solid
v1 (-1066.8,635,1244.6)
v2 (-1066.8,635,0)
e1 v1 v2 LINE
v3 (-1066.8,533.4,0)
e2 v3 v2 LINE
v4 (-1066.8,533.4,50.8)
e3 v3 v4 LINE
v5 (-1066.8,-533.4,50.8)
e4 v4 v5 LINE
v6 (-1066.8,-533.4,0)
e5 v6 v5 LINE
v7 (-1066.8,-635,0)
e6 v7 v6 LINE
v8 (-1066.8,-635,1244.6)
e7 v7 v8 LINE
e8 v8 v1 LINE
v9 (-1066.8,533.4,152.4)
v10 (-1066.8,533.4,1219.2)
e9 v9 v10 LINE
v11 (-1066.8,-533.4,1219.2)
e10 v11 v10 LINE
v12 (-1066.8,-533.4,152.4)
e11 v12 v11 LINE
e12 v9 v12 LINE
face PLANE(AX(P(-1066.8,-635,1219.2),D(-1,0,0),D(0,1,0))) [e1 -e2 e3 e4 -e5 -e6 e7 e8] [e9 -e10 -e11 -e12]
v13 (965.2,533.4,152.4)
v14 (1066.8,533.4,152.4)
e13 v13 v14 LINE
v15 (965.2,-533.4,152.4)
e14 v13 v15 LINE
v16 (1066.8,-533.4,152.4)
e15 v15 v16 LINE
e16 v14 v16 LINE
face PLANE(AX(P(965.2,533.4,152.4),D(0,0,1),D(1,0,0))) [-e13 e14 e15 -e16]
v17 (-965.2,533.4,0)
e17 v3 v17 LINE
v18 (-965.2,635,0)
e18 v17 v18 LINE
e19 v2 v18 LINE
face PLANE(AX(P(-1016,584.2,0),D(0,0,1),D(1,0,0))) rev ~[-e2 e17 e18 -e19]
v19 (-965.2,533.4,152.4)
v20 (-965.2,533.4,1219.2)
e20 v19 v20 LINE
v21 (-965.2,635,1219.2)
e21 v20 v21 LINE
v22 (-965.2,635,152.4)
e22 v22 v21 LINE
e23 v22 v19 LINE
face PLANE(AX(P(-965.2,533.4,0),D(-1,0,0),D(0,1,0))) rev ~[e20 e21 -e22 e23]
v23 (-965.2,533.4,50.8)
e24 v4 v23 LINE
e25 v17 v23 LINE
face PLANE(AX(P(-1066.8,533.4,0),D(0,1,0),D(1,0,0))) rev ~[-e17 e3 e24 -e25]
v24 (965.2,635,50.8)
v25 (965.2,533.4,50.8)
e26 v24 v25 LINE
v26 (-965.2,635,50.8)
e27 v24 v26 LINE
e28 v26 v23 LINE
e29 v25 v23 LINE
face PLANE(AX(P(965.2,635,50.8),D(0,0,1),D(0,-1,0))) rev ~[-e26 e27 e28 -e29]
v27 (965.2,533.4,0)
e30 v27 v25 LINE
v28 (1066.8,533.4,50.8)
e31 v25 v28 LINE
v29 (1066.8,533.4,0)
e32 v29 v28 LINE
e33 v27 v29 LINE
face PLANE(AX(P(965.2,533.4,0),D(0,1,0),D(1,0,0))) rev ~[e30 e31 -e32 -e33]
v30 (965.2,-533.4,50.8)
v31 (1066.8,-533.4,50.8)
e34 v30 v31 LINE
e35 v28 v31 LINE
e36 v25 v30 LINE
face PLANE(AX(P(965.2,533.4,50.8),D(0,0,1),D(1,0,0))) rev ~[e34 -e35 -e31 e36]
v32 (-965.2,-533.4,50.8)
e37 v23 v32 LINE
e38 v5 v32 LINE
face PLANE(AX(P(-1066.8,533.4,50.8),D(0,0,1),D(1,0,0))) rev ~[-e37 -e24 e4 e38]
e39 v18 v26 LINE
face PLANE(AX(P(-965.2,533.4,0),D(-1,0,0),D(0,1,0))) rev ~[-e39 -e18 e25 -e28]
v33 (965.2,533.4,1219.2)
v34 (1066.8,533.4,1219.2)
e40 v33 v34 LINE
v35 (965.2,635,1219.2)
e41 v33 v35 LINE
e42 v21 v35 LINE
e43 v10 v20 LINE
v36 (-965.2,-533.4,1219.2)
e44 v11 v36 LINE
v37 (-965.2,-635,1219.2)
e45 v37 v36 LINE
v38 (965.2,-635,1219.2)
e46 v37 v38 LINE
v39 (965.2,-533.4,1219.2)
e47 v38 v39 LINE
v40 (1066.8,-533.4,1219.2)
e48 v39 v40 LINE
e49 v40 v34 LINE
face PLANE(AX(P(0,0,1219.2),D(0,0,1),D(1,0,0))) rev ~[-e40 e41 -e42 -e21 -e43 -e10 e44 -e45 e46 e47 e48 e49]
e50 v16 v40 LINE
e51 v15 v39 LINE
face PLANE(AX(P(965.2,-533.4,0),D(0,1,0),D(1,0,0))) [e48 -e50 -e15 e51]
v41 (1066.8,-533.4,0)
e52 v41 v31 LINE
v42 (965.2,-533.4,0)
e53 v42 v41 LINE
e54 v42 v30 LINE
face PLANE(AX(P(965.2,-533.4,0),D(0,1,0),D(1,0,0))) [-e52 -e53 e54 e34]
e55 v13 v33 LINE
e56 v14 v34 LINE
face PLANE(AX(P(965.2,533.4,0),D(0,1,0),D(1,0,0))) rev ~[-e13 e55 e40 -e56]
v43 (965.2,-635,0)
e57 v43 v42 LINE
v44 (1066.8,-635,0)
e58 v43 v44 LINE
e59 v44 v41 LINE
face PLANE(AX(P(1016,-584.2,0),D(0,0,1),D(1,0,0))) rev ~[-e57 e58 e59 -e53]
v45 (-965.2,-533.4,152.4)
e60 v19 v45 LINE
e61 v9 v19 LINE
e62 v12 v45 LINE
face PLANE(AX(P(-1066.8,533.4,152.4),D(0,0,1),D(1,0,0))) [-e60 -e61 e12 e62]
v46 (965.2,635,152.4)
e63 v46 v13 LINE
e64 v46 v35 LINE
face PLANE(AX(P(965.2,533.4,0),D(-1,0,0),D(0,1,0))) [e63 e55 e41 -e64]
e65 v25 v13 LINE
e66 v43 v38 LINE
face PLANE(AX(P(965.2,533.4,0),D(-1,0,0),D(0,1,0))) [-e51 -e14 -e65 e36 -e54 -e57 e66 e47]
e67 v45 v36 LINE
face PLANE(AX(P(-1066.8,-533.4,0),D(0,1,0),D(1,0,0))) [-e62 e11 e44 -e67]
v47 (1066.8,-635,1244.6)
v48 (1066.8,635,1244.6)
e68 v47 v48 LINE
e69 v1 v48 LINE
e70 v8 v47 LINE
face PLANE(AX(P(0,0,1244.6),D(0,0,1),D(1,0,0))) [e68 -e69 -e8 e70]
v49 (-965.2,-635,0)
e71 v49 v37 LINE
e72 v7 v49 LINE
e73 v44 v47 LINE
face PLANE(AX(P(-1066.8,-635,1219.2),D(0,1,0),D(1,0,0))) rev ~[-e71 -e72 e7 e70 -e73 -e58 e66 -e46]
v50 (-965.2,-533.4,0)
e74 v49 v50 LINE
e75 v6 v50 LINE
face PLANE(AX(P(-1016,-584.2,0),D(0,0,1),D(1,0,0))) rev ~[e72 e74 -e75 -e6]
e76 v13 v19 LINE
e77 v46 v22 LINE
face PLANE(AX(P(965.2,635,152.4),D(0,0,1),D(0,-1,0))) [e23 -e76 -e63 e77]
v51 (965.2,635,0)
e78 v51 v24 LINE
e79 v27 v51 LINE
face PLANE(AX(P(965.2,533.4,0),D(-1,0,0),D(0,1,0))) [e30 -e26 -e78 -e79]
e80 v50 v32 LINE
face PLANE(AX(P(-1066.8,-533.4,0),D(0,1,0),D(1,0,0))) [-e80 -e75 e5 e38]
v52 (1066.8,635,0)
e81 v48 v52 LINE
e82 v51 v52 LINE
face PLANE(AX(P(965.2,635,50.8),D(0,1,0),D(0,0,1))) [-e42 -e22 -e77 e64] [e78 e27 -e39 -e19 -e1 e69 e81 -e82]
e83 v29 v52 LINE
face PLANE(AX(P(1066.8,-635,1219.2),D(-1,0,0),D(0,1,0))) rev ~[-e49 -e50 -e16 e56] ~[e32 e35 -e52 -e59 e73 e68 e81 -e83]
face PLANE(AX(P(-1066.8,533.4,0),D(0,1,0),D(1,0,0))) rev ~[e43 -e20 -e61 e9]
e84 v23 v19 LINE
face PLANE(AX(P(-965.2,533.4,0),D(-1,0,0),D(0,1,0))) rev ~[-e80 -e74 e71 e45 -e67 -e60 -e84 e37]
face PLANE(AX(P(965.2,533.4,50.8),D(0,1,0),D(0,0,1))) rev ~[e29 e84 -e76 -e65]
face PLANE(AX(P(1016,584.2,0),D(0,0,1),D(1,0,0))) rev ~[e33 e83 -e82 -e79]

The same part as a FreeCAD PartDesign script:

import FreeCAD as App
import Part
import Sketcher

V = App.Vector
Q = App.Units.Quantity

doc = App.newDocument("Part")
body = doc.addObject("PartDesign::Body", "Body")
body.AllowCompound = True

# Sketch on XY plane
sketch1 = body.newObject("Sketcher::SketchObject", "Sketch")
sketch1.AttachmentSupport = (doc.getObject("XY_Plane"), [""])
sketch1.MapMode = "FlatFace"
sketch1.addGeometry(Part.LineSegment(V(-1067, 635, 0), V(-1067, 533, 0)), False)
sketch1.addGeometry(Part.LineSegment(V(-1067, 533, 0), V(-965, 533, 0)), False)
sketch1.addGeometry(Part.LineSegment(V(-965, 533, 0), V(-965, 635, 0)), False)
sketch1.addGeometry(Part.LineSegment(V(-965, 635, 0), V(-1067, 635, 0)), False)
sketch1.addGeometry(Part.LineSegment(V(-1067, -533, 0), V(-1067, -635, 0)), False)
sketch1.addGeometry(Part.LineSegment(V(-1067, -635, 0), V(-965, -635, 0)), False)
sketch1.addGeometry(Part.LineSegment(V(-965, -635, 0), V(-965, -533, 0)), False)
sketch1.addGeometry(Part.LineSegment(V(-965, -533, 0), V(-1067, -533, 0)), False)
sketch1.addGeometry(Part.LineSegment(V(965, -533, 0), V(965, -635, 0)), False)
sketch1.addGeometry(Part.LineSegment(V(965, -635, 0), V(1067, -635, 0)), False)
sketch1.addGeometry(Part.LineSegment(V(1067, -635, 0), V(1067, -533, 0)), False)
sketch1.addGeometry(Part.LineSegment(V(1067, -533, 0), V(965, -533, 0)), False)
sketch1.addGeometry(Part.LineSegment(V(965, 635, 0), V(965, 533, 0)), False)
sketch1.addGeometry(Part.LineSegment(V(965, 533, 0), V(1067, 533, 0)), False)
sketch1.addGeometry(Part.LineSegment(V(1067, 533, 0), V(1067, 635, 0)), False)
sketch1.addGeometry(Part.LineSegment(V(1067, 635, 0), V(965, 635, 0)), False)
sketch1.addConstraint(Sketcher.Constraint("Coincident", 0, 2, 1, 1))
sketch1.addConstraint(Sketcher.Constraint("Coincident", 1, 2, 2, 1))
sketch1.addConstraint(Sketcher.Constraint("Coincident", 2, 2, 3, 1))
sketch1.addConstraint(Sketcher.Constraint("Coincident", 3, 2, 0, 1))
sketch1.addConstraint(Sketcher.Constraint("Coincident", 4, 2, 5, 1))
sketch1.addConstraint(Sketcher.Constraint("Coincident", 5, 2, 6, 1))
sketch1.addConstraint(Sketcher.Constraint("Coincident", 6, 2, 7, 1))
sketch1.addConstraint(Sketcher.Constraint("Coincident", 7, 2, 4, 1))
sketch1.addConstraint(Sketcher.Constraint("Coincident", 8, 2, 9, 1))
sketch1.addConstraint(Sketcher.Constraint("Coincident", 9, 2, 10, 1))
sketch1.addConstraint(Sketcher.Constraint("Coincident", 10, 2, 11, 1))
sketch1.addConstraint(Sketcher.Constraint("Coincident", 11, 2, 8, 1))
sketch1.addConstraint(Sketcher.Constraint("Coincident", 12, 2, 13, 1))
sketch1.addConstraint(Sketcher.Constraint("Coincident", 13, 2, 14, 1))
sketch1.addConstraint(Sketcher.Constraint("Coincident", 14, 2, 15, 1))
sketch1.addConstraint(Sketcher.Constraint("Coincident", 15, 2, 12, 1))
sketch1.addConstraint(Sketcher.Constraint("Vertical", 0))
sketch1.addConstraint(Sketcher.Constraint("Horizontal", 1))
sketch1.addConstraint(Sketcher.Constraint("Vertical", 2))
sketch1.addConstraint(Sketcher.Constraint("Horizontal", 3))
sketch1.addConstraint(Sketcher.Constraint("Vertical", 4))
sketch1.addConstraint(Sketcher.Constraint("Horizontal", 5))
sketch1.addConstraint(Sketcher.Constraint("Vertical", 6))
sketch1.addConstraint(Sketcher.Constraint("Horizontal", 7))
sketch1.addConstraint(Sketcher.Constraint("Vertical", 8))
sketch1.addConstraint(Sketcher.Constraint("Horizontal", 9))
sketch1.addConstraint(Sketcher.Constraint("Vertical", 10))
sketch1.addConstraint(Sketcher.Constraint("Horizontal", 11))
sketch1.addConstraint(Sketcher.Constraint("Vertical", 12))
sketch1.addConstraint(Sketcher.Constraint("Horizontal", 13))
sketch1.addConstraint(Sketcher.Constraint("Vertical", 14))
sketch1.addConstraint(Sketcher.Constraint("Horizontal", 15))
sketch1.addConstraint(Sketcher.Constraint("Symmetric", 2, 2, 8, 2, -1, 1))
sketch1.addConstraint(Sketcher.Constraint("Symmetric", 0, 2, 10, 2, -1, 1))
sketch1.addConstraint(Sketcher.Constraint("Symmetric", 6, 2, 12, 2, -1, 1))
sketch1.addConstraint(Sketcher.Constraint("Symmetric", 4, 2, 14, 2, -1, 1))
sketch1.addConstraint(Sketcher.Constraint("Symmetric", 5, 2, 8, 2, -2))
sketch1.addConstraint(Sketcher.Constraint("Symmetric", 7, 2, 10, 2, -2))
sketch1.addConstraint(Sketcher.Constraint("Equal", 15, 0))
sketch1.addConstraint(Sketcher.Constraint("DistanceX", 1, 1, 1, 2, Q("4 in")))
sketch1.addConstraint(Sketcher.Constraint("DistanceX", 0, 2, -1, 1, Q("42 in")))
sketch1.addConstraint(Sketcher.Constraint("DistanceY", -1, 1, 0, 2, Q("21 in")))
pad1 = body.newObject("PartDesign::Pad", "Pad")
pad1.Profile = sketch1
pad1.Length = Q("48 in")

# Sketch on XY plane
sketch2 = body.newObject("Sketcher::SketchObject", "Sketch001")
sketch2.AttachmentSupport = (doc.getObject("XY_Plane"), [""])
sketch2.MapMode = "FlatFace"
sketch2.AttachmentOffset = App.Placement(V(0, 0, 48 * 25.4), App.Rotation())
sketch2.addGeometry(Part.LineSegment(V(-1067, 635, 0), V(-1067, -635, 0)), False)
sketch2.addGeometry(Part.LineSegment(V(-1067, -635, 0), V(1067, -635, 0)), False)
sketch2.addGeometry(Part.LineSegment(V(1067, -635, 0), V(1067, 635, 0)), False)
sketch2.addGeometry(Part.LineSegment(V(1067, 635, 0), V(-1067, 635, 0)), False)
sketch2.addConstraint(Sketcher.Constraint("Coincident", 0, 2, 1, 1))
sketch2.addConstraint(Sketcher.Constraint("Coincident", 1, 2, 2, 1))
sketch2.addConstraint(Sketcher.Constraint("Coincident", 2, 2, 3, 1))
sketch2.addConstraint(Sketcher.Constraint("Coincident", 3, 2, 0, 1))
sketch2.addConstraint(Sketcher.Constraint("Vertical", 0))
sketch2.addConstraint(Sketcher.Constraint("Horizontal", 1))
sketch2.addConstraint(Sketcher.Constraint("Vertical", 2))
sketch2.addConstraint(Sketcher.Constraint("Horizontal", 3))
sketch2.addConstraint(Sketcher.Constraint("Symmetric", 0, 2, 2, 2, -1, 1))
sketch2.addConstraint(Sketcher.Constraint("DistanceX", 1, 1, 1, 2, Q("84 in")))
sketch2.addConstraint(Sketcher.Constraint("DistanceY", 0, 2, 0, 1, Q("50 in")))
pad2 = body.newObject("PartDesign::Pad", "Pad001")
pad2.Profile = sketch2
pad2.Length = Q("1 in")

# Sketch on XZ plane
sketch3 = body.newObject("Sketcher::SketchObject", "Sketch002")
sketch3.AttachmentSupport = (doc.getObject("XZ_Plane"), [""])
sketch3.MapMode = "FlatFace"
sketch3.AttachmentOffset = App.Placement(V(0, 0, -21 * 25.4), App.Rotation())
sketch3.addGeometry(Part.LineSegment(V(-1067, 152, 0), V(-1067, 51, 0)), False)
sketch3.addGeometry(Part.LineSegment(V(-1067, 51, 0), V(-965, 51, 0)), False)
sketch3.addGeometry(Part.LineSegment(V(-965, 51, 0), V(-965, 152, 0)), False)
sketch3.addGeometry(Part.LineSegment(V(-965, 152, 0), V(-1067, 152, 0)), False)
sketch3.addGeometry(Part.LineSegment(V(965, 152, 0), V(965, 51, 0)), False)
sketch3.addGeometry(Part.LineSegment(V(965, 51, 0), V(1067, 51, 0)), False)
sketch3.addGeometry(Part.LineSegment(V(1067, 51, 0), V(1067, 152, 0)), False)
sketch3.addGeometry(Part.LineSegment(V(1067, 152, 0), V(965, 152, 0)), False)
sketch3.addConstraint(Sketcher.Constraint("Coincident", 0, 2, 1, 1))
sketch3.addConstraint(Sketcher.Constraint("Coincident", 1, 2, 2, 1))
sketch3.addConstraint(Sketcher.Constraint("Coincident", 2, 2, 3, 1))
sketch3.addConstraint(Sketcher.Constraint("Coincident", 3, 2, 0, 1))
sketch3.addConstraint(Sketcher.Constraint("Coincident", 4, 2, 5, 1))
sketch3.addConstraint(Sketcher.Constraint("Coincident", 5, 2, 6, 1))
sketch3.addConstraint(Sketcher.Constraint("Coincident", 6, 2, 7, 1))
sketch3.addConstraint(Sketcher.Constraint("Coincident", 7, 2, 4, 1))
sketch3.addConstraint(Sketcher.Constraint("Vertical", 0))
sketch3.addConstraint(Sketcher.Constraint("Horizontal", 1))
sketch3.addConstraint(Sketcher.Constraint("Vertical", 2))
sketch3.addConstraint(Sketcher.Constraint("Horizontal", 3))
sketch3.addConstraint(Sketcher.Constraint("Vertical", 4))
sketch3.addConstraint(Sketcher.Constraint("Horizontal", 5))
sketch3.addConstraint(Sketcher.Constraint("Vertical", 6))
sketch3.addConstraint(Sketcher.Constraint("Horizontal", 7))
sketch3.addConstraint(Sketcher.Constraint("Symmetric", 1, 2, 4, 2, -2))
sketch3.addConstraint(Sketcher.Constraint("Symmetric", 3, 2, 6, 2, -2))
sketch3.addConstraint(Sketcher.Constraint("Equal", 7, 0))
sketch3.addConstraint(Sketcher.Constraint("DistanceX", 1, 1, 1, 2, Q("4 in")))
sketch3.addConstraint(Sketcher.Constraint("DistanceX", 0, 2, -1, 1, Q("42 in")))
sketch3.addConstraint(Sketcher.Constraint("DistanceY", -1, 1, 0, 2, Q("2 in")))
pad3 = body.newObject("PartDesign::Pad", "Pad002")
pad3.Profile = sketch3
pad3.Length = Q("42 in")

# Sketch on YZ plane
sketch4 = body.newObject("Sketcher::SketchObject", "Sketch003")
sketch4.AttachmentSupport = (doc.getObject("YZ_Plane"), [""])
sketch4.MapMode = "FlatFace"
sketch4.AttachmentOffset = App.Placement(V(0, 0, 38 * 25.4), App.Rotation())
sketch4.addGeometry(Part.LineSegment(V(635, 152, 0), V(635, 51, 0)), False)
sketch4.addGeometry(Part.LineSegment(V(635, 51, 0), V(533, 51, 0)), False)
sketch4.addGeometry(Part.LineSegment(V(533, 51, 0), V(533, 152, 0)), False)
sketch4.addGeometry(Part.LineSegment(V(533, 152, 0), V(635, 152, 0)), False)
sketch4.addConstraint(Sketcher.Constraint("Coincident", 0, 2, 1, 1))
sketch4.addConstraint(Sketcher.Constraint("Coincident", 1, 2, 2, 1))
sketch4.addConstraint(Sketcher.Constraint("Coincident", 2, 2, 3, 1))
sketch4.addConstraint(Sketcher.Constraint("Coincident", 3, 2, 0, 1))
sketch4.addConstraint(Sketcher.Constraint("Vertical", 0))
sketch4.addConstraint(Sketcher.Constraint("Horizontal", 1))
sketch4.addConstraint(Sketcher.Constraint("Vertical", 2))
sketch4.addConstraint(Sketcher.Constraint("Horizontal", 3))
sketch4.addConstraint(Sketcher.Constraint("Equal", 3, 0))
sketch4.addConstraint(Sketcher.Constraint("DistanceX", 1, 2, 1, 1, Q("4 in")))
sketch4.addConstraint(Sketcher.Constraint("DistanceX", -1, 1, 0, 2, Q("25 in")))
sketch4.addConstraint(Sketcher.Constraint("DistanceY", -1, 1, 0, 2, Q("2 in")))
pad4 = body.newObject("PartDesign::Pad", "Pad003")
pad4.Profile = sketch4
pad4.Type = "UpToLast"
pad4.Reversed = True

doc.recompute()
